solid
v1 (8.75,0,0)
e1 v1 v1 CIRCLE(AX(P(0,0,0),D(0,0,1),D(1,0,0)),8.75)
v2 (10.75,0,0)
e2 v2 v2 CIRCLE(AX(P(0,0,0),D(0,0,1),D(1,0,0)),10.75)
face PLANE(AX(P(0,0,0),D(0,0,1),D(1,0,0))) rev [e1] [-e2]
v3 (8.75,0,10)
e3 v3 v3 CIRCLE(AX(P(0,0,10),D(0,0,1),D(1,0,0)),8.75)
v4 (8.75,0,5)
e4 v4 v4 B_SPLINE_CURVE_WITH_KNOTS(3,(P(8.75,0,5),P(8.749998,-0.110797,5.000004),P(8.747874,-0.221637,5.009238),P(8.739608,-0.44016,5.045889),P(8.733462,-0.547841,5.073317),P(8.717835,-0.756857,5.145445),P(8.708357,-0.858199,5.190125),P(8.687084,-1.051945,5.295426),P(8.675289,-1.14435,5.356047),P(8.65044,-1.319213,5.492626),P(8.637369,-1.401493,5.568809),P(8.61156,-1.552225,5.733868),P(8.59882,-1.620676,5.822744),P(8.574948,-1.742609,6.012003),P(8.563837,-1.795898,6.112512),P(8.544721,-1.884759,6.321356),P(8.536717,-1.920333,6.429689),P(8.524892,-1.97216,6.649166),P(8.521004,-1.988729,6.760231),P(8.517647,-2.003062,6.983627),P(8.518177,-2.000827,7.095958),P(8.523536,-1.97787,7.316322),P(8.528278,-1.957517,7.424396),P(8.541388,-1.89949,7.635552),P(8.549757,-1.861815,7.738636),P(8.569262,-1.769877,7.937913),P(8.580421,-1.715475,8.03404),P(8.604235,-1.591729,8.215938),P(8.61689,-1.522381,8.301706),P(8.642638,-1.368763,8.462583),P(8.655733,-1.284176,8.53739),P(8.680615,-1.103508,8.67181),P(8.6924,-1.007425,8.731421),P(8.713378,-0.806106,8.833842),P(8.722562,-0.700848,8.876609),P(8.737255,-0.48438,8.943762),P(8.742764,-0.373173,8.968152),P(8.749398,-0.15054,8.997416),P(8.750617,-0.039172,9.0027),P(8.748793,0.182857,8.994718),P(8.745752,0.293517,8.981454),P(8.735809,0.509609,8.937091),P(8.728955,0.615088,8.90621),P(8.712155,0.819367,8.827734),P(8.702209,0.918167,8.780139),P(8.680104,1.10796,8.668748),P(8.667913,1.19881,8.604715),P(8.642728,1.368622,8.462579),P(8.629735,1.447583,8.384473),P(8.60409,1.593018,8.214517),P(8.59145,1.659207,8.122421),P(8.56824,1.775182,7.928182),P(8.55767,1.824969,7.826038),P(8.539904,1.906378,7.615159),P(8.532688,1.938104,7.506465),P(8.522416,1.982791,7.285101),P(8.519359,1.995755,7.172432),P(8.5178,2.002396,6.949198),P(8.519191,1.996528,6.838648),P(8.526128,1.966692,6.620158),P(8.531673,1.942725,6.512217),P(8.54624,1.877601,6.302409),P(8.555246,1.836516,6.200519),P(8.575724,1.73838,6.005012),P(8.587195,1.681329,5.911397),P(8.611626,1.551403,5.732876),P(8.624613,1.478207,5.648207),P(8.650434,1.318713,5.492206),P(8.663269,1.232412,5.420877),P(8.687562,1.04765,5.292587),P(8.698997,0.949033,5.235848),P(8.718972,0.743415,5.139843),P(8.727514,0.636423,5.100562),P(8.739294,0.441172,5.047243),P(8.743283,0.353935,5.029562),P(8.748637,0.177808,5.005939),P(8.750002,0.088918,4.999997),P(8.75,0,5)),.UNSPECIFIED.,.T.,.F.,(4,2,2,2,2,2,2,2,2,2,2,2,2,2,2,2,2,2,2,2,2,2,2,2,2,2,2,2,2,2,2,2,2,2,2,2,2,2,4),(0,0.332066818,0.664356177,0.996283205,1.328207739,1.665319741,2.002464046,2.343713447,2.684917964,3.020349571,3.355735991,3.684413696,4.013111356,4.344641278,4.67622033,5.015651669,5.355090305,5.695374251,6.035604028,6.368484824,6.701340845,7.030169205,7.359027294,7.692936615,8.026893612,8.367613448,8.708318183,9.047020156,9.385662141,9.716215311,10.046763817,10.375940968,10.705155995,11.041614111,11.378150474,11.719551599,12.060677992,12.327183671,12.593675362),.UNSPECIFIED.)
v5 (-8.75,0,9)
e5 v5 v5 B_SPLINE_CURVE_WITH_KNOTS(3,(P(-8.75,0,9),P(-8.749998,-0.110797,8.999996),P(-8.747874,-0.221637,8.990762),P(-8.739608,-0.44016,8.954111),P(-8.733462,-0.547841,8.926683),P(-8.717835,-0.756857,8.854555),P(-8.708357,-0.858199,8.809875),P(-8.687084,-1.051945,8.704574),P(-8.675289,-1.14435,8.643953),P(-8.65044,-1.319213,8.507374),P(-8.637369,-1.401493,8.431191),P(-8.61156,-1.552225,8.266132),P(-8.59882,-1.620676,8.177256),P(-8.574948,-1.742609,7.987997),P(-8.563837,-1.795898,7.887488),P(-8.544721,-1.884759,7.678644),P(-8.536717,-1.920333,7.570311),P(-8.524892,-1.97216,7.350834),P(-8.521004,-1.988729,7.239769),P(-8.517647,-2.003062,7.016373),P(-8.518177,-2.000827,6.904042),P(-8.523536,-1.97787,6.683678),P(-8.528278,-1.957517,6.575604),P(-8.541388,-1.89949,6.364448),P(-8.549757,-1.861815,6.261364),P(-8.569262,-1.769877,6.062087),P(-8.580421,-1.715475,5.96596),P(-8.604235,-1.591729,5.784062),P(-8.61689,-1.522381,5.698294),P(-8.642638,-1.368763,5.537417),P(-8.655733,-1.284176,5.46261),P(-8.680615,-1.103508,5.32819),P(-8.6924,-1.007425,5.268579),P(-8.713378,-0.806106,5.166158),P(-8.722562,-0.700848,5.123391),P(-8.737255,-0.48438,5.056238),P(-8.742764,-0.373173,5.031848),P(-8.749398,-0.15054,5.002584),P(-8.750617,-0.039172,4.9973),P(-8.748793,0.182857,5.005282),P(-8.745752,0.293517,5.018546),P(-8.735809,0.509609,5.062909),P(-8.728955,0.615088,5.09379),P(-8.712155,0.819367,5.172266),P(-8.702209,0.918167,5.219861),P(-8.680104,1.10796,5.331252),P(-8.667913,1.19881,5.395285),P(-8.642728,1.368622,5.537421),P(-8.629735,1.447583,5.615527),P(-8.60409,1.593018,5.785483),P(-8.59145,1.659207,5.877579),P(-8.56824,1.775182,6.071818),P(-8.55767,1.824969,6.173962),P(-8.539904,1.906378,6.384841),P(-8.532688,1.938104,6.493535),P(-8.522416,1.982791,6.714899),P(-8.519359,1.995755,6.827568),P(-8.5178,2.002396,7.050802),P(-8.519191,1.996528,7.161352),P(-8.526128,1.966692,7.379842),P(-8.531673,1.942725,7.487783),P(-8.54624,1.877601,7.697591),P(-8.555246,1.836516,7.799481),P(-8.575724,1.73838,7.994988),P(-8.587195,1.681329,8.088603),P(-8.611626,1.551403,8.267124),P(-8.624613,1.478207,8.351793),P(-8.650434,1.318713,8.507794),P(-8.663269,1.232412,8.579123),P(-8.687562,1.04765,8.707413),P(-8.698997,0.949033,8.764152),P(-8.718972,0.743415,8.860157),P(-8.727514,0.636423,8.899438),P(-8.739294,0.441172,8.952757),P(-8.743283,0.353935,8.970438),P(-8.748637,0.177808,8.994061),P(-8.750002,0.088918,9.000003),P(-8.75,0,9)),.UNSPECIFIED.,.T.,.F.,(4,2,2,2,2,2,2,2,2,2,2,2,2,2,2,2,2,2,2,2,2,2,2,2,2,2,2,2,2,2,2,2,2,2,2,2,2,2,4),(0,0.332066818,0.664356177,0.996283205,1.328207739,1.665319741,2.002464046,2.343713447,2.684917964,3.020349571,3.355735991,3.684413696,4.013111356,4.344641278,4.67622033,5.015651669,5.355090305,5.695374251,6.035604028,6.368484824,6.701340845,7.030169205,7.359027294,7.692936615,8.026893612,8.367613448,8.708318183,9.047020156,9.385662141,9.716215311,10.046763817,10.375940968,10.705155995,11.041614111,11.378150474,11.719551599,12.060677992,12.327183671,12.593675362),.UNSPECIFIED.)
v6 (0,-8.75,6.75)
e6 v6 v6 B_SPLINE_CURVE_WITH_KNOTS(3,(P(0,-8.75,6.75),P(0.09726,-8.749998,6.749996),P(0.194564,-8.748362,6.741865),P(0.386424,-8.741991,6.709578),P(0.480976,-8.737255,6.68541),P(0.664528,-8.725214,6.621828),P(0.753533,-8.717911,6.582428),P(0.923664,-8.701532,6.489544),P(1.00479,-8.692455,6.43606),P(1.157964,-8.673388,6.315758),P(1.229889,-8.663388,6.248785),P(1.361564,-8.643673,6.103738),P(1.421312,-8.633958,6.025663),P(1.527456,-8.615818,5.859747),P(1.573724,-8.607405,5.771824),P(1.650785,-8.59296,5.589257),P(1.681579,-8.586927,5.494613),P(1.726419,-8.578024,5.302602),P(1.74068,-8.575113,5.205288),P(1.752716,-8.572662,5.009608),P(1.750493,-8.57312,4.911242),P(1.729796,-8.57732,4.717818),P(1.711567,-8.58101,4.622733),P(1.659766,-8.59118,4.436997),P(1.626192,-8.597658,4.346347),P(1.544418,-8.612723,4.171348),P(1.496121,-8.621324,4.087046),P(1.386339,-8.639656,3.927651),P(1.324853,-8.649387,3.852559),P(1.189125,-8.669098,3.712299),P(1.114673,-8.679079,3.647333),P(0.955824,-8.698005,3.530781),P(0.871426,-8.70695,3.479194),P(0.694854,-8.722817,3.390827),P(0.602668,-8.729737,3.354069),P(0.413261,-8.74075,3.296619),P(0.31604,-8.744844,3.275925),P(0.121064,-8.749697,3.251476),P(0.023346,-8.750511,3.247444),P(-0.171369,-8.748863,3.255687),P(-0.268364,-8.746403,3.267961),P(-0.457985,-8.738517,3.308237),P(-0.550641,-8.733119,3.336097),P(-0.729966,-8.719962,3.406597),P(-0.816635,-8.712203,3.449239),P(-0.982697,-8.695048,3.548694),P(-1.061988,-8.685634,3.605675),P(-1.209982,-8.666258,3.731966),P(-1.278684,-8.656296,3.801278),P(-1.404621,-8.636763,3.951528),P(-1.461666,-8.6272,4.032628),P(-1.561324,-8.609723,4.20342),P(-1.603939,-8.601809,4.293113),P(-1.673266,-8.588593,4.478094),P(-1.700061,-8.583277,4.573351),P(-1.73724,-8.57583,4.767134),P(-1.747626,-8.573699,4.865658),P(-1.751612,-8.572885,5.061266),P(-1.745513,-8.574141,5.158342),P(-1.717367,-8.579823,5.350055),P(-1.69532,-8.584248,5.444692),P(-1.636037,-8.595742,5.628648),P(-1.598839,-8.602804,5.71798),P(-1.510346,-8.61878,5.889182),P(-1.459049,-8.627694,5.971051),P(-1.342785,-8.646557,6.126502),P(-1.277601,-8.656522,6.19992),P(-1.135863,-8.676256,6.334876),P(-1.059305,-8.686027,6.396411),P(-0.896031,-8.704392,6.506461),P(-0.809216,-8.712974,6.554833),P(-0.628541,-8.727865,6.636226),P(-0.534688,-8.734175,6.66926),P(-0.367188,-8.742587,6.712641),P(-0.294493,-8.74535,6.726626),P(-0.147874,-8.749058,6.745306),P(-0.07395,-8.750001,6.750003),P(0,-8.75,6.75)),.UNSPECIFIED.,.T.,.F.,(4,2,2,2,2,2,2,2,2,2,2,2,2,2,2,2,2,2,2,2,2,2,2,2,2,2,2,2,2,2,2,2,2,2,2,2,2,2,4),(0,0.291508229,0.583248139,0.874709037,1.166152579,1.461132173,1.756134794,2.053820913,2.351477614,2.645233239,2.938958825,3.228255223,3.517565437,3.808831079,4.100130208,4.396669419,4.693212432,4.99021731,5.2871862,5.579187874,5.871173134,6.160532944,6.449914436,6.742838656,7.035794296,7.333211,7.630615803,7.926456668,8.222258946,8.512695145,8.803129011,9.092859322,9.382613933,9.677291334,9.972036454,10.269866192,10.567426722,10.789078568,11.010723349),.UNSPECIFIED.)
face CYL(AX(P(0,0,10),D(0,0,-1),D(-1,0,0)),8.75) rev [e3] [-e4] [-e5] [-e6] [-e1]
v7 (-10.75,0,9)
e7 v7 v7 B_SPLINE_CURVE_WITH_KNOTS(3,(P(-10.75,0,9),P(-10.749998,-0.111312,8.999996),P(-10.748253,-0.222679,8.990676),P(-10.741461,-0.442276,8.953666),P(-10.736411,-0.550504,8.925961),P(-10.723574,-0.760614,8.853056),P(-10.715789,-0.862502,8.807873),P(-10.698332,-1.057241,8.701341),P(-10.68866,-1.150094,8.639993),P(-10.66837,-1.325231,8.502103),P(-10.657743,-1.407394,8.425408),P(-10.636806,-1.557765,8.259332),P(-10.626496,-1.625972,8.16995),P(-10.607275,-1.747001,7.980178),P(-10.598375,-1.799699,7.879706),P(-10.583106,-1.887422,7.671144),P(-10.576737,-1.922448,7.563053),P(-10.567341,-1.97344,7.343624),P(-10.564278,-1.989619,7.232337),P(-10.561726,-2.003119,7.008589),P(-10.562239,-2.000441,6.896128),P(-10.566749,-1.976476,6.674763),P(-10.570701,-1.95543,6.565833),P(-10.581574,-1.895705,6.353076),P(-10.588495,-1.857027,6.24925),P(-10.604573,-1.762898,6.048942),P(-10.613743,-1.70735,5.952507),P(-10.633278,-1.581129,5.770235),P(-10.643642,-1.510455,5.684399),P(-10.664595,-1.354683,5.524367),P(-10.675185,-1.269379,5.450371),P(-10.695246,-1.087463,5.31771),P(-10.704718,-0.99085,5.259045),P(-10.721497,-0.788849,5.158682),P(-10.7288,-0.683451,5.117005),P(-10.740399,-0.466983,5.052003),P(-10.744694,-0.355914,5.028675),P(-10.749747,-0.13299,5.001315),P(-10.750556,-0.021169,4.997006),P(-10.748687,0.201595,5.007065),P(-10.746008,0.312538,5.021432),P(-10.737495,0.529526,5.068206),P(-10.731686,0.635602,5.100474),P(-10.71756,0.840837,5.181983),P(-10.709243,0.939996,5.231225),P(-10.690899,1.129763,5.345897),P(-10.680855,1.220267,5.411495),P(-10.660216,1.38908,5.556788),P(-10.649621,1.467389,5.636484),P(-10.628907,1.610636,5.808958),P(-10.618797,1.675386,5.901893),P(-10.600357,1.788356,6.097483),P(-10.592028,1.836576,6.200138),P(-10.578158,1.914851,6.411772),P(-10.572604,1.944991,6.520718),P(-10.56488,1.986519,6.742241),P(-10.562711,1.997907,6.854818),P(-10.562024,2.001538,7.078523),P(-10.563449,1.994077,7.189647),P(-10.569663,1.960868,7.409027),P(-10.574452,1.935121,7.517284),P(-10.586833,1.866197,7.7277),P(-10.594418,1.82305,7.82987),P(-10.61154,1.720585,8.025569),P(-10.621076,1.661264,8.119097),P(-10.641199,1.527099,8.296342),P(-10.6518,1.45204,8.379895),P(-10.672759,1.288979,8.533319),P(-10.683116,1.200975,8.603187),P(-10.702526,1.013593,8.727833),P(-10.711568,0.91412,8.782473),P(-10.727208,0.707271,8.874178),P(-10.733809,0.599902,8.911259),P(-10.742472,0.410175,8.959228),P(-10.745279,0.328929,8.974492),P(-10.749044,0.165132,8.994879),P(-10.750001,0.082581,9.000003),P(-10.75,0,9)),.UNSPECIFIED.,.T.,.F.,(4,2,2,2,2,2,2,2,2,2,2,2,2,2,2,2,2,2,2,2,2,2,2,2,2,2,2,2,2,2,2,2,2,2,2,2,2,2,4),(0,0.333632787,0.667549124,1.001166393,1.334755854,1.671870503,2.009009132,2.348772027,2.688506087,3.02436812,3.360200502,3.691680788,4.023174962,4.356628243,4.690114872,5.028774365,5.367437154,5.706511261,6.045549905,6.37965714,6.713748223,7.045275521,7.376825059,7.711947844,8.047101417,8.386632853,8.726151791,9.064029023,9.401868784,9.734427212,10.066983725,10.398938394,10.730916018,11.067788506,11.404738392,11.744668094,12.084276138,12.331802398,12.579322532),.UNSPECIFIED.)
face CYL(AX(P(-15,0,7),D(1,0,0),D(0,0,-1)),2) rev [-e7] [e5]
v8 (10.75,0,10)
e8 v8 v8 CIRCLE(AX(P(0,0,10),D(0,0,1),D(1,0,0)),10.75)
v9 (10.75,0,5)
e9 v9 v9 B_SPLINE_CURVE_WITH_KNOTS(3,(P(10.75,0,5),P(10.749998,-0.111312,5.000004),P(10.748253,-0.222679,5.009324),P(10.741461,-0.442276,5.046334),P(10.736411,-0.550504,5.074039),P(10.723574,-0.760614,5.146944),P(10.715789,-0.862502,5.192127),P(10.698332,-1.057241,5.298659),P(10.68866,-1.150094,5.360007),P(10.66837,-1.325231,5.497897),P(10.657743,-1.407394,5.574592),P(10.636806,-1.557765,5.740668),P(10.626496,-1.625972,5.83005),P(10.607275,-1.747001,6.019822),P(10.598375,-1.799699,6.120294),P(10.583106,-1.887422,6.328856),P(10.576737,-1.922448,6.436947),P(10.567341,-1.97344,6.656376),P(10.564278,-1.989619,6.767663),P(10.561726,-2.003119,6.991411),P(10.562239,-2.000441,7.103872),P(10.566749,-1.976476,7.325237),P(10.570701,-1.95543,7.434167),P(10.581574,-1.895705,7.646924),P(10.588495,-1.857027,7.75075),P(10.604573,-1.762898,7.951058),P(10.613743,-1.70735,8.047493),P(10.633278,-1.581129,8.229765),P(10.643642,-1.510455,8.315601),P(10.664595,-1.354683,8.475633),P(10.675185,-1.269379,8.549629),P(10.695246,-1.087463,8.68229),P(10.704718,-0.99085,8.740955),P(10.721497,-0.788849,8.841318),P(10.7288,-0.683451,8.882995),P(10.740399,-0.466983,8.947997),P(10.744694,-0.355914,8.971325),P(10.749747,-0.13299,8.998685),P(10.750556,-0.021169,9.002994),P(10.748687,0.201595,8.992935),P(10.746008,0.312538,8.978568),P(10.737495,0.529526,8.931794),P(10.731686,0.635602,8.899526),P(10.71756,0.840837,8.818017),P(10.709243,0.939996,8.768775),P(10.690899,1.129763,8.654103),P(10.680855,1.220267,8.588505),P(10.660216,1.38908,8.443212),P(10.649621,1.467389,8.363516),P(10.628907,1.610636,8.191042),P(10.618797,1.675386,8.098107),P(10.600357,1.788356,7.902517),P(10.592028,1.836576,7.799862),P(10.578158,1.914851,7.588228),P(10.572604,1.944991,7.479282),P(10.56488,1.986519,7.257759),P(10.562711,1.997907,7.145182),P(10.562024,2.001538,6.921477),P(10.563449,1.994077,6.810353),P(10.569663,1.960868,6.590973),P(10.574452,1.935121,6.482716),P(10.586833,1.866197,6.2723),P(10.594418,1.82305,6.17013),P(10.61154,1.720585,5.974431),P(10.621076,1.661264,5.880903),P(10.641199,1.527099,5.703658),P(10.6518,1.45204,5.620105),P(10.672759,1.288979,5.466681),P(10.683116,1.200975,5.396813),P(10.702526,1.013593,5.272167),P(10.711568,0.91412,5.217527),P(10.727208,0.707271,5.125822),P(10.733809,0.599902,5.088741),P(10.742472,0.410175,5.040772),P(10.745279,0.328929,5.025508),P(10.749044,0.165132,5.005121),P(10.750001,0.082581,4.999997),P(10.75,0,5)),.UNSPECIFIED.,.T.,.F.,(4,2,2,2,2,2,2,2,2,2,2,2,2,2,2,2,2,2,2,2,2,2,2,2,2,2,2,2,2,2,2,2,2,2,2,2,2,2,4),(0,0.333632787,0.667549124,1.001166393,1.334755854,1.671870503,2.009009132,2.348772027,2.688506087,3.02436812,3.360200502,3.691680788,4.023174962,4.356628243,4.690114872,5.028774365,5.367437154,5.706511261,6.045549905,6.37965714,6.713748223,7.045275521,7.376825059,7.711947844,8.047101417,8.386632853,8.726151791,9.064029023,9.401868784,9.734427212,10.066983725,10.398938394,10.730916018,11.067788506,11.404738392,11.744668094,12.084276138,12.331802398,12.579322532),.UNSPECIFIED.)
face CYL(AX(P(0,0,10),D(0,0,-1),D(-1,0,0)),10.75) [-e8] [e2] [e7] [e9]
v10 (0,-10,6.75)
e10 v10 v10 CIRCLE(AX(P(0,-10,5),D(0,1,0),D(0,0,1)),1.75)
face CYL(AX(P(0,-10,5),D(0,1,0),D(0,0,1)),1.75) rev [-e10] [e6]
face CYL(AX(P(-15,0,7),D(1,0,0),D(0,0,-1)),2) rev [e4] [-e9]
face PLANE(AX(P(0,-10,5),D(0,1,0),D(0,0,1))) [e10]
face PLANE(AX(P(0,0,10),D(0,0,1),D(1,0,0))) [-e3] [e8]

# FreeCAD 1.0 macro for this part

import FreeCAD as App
import Part
import Sketcher
Q = App.Units.Quantity

doc = App.newDocument("Part")
body = doc.addObject("PartDesign::Body", "Body")

# Sketch on XY plane
sketch1 = body.newObject("Sketcher::SketchObject", "Sketch")
sketch1.AttachmentSupport = (doc.getObject("XY_Plane"), [""])
sketch1.MapMode = "FlatFace"
sketch1.addGeometry([
    Part.Circle(App.Vector(0, 0, 0), App.Vector(0, 0, 1), 11),
    Part.Circle(App.Vector(0, 0, 0), App.Vector(0, 0, 1), 9),
], False)
sketch1.addConstraint([
    Sketcher.Constraint("Coincident", 0, 3, -1, 1),
    Sketcher.Constraint("Coincident", 1, 3, -1, 1),
    Sketcher.Constraint("Diameter", 0, Q("21.5 mm")),
    Sketcher.Constraint("Diameter", 1, Q("17.5 mm")),
])
pad1 = body.newObject("PartDesign::Pad", "Pad")
pad1.Profile = sketch1
pad1.Length = 10

# Sketch on XZ plane
sketch2 = body.newObject("Sketcher::SketchObject", "Sketch001")
sketch2.AttachmentSupport = (doc.getObject("XZ_Plane"), [""])
sketch2.MapMode = "FlatFace"
sketch2.addGeometry(Part.Circle(App.Vector(0, 5, 0), App.Vector(0, 0, 1), 1.8), False)
sketch2.addConstraint([
    Sketcher.Constraint("PointOnObject", 0, 3, -2),
    Sketcher.Constraint("Diameter", 0, Q("3.5 mm")),
    Sketcher.Constraint("DistanceY", -1, 1, 0, 3, Q("5 mm")),
])
pocket1 = body.newObject("PartDesign::Pocket", "Pocket")
pocket1.Profile = sketch2
pocket1.Length = 10
pocket1.Reversed = True

# Sketch on YZ plane
sketch3 = body.newObject("Sketcher::SketchObject", "Sketch002")
sketch3.AttachmentSupport = (doc.getObject("YZ_Plane"), [""])
sketch3.MapMode = "FlatFace"
sketch3.addGeometry(Part.Circle(App.Vector(0, 7, 0), App.Vector(0, 0, 1), 2), False)
sketch3.addConstraint([
    Sketcher.Constraint("PointOnObject", 0, 3, -2),
    Sketcher.Constraint("Diameter", 0, Q("4 mm")),
    Sketcher.Constraint("DistanceY", -1, 1, 0, 3, Q("7 mm")),
])
pocket2 = body.newObject("PartDesign::Pocket", "Pocket001")
pocket2.Profile = sketch3
pocket2.Length = 30
pocket2.Midplane = True

doc.recompute()
